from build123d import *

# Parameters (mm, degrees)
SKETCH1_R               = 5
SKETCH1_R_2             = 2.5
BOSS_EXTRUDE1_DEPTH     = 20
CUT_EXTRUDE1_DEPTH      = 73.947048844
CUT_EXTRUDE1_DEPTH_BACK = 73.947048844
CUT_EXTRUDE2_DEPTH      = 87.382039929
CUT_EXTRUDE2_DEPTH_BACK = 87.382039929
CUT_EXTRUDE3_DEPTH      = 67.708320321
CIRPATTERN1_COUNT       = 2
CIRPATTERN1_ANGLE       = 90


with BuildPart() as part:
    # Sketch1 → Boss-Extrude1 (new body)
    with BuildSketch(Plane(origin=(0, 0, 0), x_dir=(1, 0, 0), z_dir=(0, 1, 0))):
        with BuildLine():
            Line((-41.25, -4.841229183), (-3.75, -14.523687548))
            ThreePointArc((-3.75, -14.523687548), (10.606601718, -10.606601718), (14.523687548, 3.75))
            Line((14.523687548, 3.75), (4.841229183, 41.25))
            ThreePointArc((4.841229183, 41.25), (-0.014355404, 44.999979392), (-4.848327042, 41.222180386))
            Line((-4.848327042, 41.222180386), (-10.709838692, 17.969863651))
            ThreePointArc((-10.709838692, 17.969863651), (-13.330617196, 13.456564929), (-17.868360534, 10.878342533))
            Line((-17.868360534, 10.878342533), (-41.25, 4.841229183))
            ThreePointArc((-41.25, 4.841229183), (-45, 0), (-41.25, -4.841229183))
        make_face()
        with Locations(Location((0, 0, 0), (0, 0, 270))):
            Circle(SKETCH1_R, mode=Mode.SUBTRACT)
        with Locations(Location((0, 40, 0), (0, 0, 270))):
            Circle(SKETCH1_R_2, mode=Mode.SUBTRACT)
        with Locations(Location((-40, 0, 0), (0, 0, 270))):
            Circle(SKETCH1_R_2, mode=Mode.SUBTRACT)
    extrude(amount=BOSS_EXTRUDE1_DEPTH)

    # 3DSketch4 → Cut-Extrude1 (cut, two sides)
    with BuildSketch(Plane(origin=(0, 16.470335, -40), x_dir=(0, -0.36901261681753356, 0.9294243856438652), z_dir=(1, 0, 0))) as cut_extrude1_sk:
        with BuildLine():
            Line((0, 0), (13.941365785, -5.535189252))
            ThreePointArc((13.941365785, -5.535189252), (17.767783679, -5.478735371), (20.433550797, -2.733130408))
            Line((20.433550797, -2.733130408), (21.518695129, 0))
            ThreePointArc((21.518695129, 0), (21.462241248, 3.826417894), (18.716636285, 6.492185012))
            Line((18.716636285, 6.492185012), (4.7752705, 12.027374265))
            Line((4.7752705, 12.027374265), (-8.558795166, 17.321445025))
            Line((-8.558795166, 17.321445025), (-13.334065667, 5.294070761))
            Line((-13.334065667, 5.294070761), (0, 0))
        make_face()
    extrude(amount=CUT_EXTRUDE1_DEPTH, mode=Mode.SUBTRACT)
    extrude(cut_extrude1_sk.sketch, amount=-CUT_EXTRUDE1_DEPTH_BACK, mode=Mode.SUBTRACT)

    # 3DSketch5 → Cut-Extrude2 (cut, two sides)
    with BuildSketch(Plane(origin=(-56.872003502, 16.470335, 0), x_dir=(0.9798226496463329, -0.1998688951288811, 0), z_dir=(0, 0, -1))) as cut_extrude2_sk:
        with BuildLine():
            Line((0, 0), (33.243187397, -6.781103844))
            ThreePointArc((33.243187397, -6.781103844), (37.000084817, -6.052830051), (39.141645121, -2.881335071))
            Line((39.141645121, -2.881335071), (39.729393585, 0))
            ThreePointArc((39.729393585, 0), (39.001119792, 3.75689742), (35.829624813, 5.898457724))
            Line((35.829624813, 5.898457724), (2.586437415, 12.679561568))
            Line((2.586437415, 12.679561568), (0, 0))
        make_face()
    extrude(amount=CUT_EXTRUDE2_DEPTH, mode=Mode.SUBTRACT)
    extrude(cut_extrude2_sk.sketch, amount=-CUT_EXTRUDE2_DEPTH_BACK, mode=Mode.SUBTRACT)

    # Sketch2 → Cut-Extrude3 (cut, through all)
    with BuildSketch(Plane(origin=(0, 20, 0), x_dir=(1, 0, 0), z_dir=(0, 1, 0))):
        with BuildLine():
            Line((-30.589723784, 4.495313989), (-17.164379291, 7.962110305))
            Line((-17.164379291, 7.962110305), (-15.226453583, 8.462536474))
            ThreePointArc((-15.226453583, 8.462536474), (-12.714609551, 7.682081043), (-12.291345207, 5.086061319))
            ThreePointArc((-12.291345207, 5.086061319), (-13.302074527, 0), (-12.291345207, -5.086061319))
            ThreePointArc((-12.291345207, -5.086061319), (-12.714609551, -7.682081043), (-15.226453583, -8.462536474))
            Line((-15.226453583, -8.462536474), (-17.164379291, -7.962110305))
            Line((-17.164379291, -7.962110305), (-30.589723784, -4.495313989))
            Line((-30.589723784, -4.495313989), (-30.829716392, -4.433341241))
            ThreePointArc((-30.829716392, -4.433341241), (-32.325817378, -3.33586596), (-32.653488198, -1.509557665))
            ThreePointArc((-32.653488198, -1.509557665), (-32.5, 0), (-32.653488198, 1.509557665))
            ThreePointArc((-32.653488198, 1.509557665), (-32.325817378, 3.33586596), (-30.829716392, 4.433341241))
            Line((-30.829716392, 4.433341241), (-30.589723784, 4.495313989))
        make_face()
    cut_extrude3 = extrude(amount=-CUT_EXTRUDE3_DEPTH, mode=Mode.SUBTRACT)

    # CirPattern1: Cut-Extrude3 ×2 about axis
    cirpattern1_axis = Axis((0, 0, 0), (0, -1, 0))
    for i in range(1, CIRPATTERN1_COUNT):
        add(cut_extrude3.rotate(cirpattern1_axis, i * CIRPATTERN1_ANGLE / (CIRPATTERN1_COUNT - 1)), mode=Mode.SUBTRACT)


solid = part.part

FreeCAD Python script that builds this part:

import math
import FreeCAD as App
import Part
import Sketcher

doc = App.newDocument("Part")
body = doc.addObject("PartDesign::Body", "Body")

# Sketch on XZ plane
sketch1 = doc.addObject("Sketcher::SketchObject", "Sketch")
body.addObject(sketch1)
sketch1.AttachmentSupport = (doc.XZ_Plane, [""])
sketch1.MapMode = "FlatFace"
sketch1.addGeometry([
    Part.LineSegment(App.Vector(-41.2, 4.8, 0), App.Vector(-3.8, 14.5, 0)),  # 0
    Part.ArcOfCircle(Part.Circle(App.Vector(0, 0, 0), App.Vector(0, 0, 1), 15), math.radians(-14), math.radians(104)),  # 1
    Part.LineSegment(App.Vector(14.5, -3.8, 0), App.Vector(4.8, -41.2, 0)),  # 2
    Part.ArcOfCircle(Part.Circle(App.Vector(0, -40, 0), App.Vector(0, 0, 1), 5), math.radians(-166), math.radians(-14)),  # 3
    Part.LineSegment(App.Vector(-4.8, -41.2, 0), App.Vector(-10.7, -18, 0)),  # 4
    Part.ArcOfCircle(Part.Circle(App.Vector(-20.4, -20.6, 0), App.Vector(0, 0, 1), 10), math.radians(15), math.radians(76)),  # 5
    Part.LineSegment(App.Vector(-17.9, -10.9, 0), App.Vector(-41.2, -4.8, 0)),  # 6
    Part.ArcOfCircle(Part.Circle(App.Vector(-40, 0, 0), App.Vector(0, 0, 1), 5), math.radians(104), math.radians(256)),  # 7
    Part.Circle(App.Vector(-40, 0, 0), App.Vector(0, 0, 1), 2.5),  # 8
    Part.Circle(App.Vector(0, 0, 0), App.Vector(0, 0, 1), 5),  # 9
    Part.Circle(App.Vector(0, -40, 0), App.Vector(0, 0, 1), 2.5),  # 10
], False)
sketch1.addConstraint([
    Sketcher.Constraint("Tangent", 0, 2, 1, 2),
    Sketcher.Constraint("Tangent", 1, 1, 2, 1),
    Sketcher.Constraint("Tangent", 2, 2, 3, 2),
    Sketcher.Constraint("Tangent", 3, 1, 4, 1),
    Sketcher.Constraint("Coincident", 4, 2, 5, 1),
    Sketcher.Constraint("Tangent", 5, 2, 6, 1),
    Sketcher.Constraint("Tangent", 6, 2, 7, 2),
    Sketcher.Constraint("Tangent", 7, 1, 0, 1),
    Sketcher.Constraint("Coincident", 1, 3, -1, 1),
    Sketcher.Constraint("Coincident", 9, 3, -1, 1),
    Sketcher.Constraint("Coincident", 8, 3, 7, 3),
    Sketcher.Constraint("Coincident", 10, 3, 3, 3),
    Sketcher.Constraint("Equal", 3, 7),
    Sketcher.Constraint("Equal", 7, 9),
    Sketcher.Constraint("Equal", 8, 10),
    Sketcher.Constraint("Symmetric", 6, 2, 7, 1, -1),
    Sketcher.Constraint("PointOnObject", 3, 3, -2),
    Sketcher.Constraint("Perpendicular", 2, 6),
    Sketcher.Constraint("Diameter", 8, 5.0),
    Sketcher.Constraint("Diameter", 9, 10.0),
    Sketcher.Constraint("Radius", 1, 15.0),
    Sketcher.Constraint("Radius", 5, 10.0),
    Sketcher.Constraint("DistanceY", 3, 3, -1, 1, 40.0),
    Sketcher.Constraint("DistanceY", 5, 3, -1, 1, 20.560801),
    Sketcher.Constraint("DistanceX", 4, 2, -1, 1, 10.709839),
])
pad1 = doc.addObject("PartDesign::Pad", "Pad")
body.addObject(pad1)
pad1.Profile = sketch1
pad1.Length = 20
pad1.Reversed = True

# Sketch on YZ plane
sketch2 = doc.addObject("Sketcher::SketchObject", "Sketch001")
body.addObject(sketch2)
sketch2.AttachmentSupport = (doc.YZ_Plane, [""])
sketch2.MapMode = "FlatFace"
sketch2.addGeometry([
    Part.LineSegment(App.Vector(16.5, -40, 0), App.Vector(16.5, -25, 0)),  # 0
    Part.ArcOfCircle(Part.Circle(App.Vector(11.5, -25, 0), App.Vector(0, 0, 1), 5), math.radians(0), math.radians(90)),  # 1
    Part.LineSegment(App.Vector(11.5, -20, 0), App.Vector(8.5, -20, 0)),  # 2
    Part.ArcOfCircle(Part.Circle(App.Vector(8.5, -25, 0), App.Vector(0, 0, 1), 5), math.radians(90), math.radians(180)),  # 3
    Part.LineSegment(App.Vector(3.5, -25, 0), App.Vector(3.5, -40, 0)),  # 4
    Part.LineSegment(App.Vector(3.5, -40, 0), App.Vector(3.5, -54.3, 0)),  # 5
    Part.LineSegment(App.Vector(3.5, -54.3, 0), App.Vector(16.5, -54.3, 0)),  # 6
    Part.LineSegment(App.Vector(16.5, -54.3, 0), App.Vector(16.5, -40, 0)),  # 7
], False)
sketch2.addConstraint([
    Sketcher.Constraint("Tangent", 0, 2, 1, 1),
    Sketcher.Constraint("Tangent", 1, 2, 2, 1),
    Sketcher.Constraint("Tangent", 2, 2, 3, 1),
    Sketcher.Constraint("Tangent", 3, 2, 4, 1),
    Sketcher.Constraint("Coincident", 4, 2, 5, 1),
    Sketcher.Constraint("Coincident", 5, 2, 6, 1),
    Sketcher.Constraint("Coincident", 6, 2, 7, 1),
    Sketcher.Constraint("Coincident", 7, 2, 0, 1),
    Sketcher.Constraint("Vertical", 0),
    Sketcher.Constraint("Horizontal", 2),
    Sketcher.Constraint("Vertical", 4),
    Sketcher.Constraint("Vertical", 5),
    Sketcher.Constraint("Horizontal", 6),
    Sketcher.Constraint("Vertical", 7),
    Sketcher.Constraint("Equal", 1, 3),
    Sketcher.Constraint("Horizontal", 4, 2, 7, 2),
    Sketcher.Constraint("Radius", 1, 5.0),
    Sketcher.Constraint("DistanceY", 0, 1, 0, 2, 15.0),
    Sketcher.Constraint("DistanceY", 1, 3, -1, 1, 25.0),
    Sketcher.Constraint("DistanceX", 2, 2, 2, 1, 2.94067),
    Sketcher.Constraint("DistanceY", 5, 2, 5, 1, 14.346585),
    Sketcher.Constraint("DistanceX", -1, 1, 1, 3, 11.470335),
])
pocket1 = doc.addObject("PartDesign::Pocket", "Pocket")
body.addObject(pocket1)
pocket1.Profile = sketch2
pocket1.Type = "ThroughAll"
pocket1.Midplane = True

# Sketch on XY plane
sketch3 = doc.addObject("Sketcher::SketchObject", "Sketch002")
body.addObject(sketch3)
sketch3.AttachmentSupport = (doc.XY_Plane, [""])
sketch3.MapMode = "FlatFace"
sketch3.addGeometry([
    Part.LineSegment(App.Vector(-56.9, 16.5, 0), App.Vector(-22.9, 16.5, 0)),  # 0
    Part.ArcOfCircle(Part.Circle(App.Vector(-22.9, 11.5, 0), App.Vector(0, 0, 1), 5), math.radians(0), math.radians(90)),  # 1
    Part.LineSegment(App.Vector(-17.9, 11.5, 0), App.Vector(-17.9, 8.5, 0)),  # 2
    Part.ArcOfCircle(Part.Circle(App.Vector(-22.9, 8.5, 0), App.Vector(0, 0, 1), 5), math.radians(-90), math.radians(0)),  # 3
    Part.LineSegment(App.Vector(-22.9, 3.5, 0), App.Vector(-56.9, 3.5, 0)),  # 4
    Part.LineSegment(App.Vector(-56.9, 3.5, 0), App.Vector(-56.9, 16.5, 0)),  # 5
], False)
sketch3.addConstraint([
    Sketcher.Constraint("Tangent", 0, 2, 1, 2),
    Sketcher.Constraint("Tangent", 1, 1, 2, 1),
    Sketcher.Constraint("Tangent", 2, 2, 3, 2),
    Sketcher.Constraint("Tangent", 3, 1, 4, 1),
    Sketcher.Constraint("Coincident", 4, 2, 5, 1),
    Sketcher.Constraint("Coincident", 5, 2, 0, 1),
    Sketcher.Constraint("Horizontal", 0),
    Sketcher.Constraint("Vertical", 2),
    Sketcher.Constraint("Horizontal", 4),
    Sketcher.Constraint("Vertical", 5),
    Sketcher.Constraint("Equal", 1, 3),
    Sketcher.Constraint("Radius", 1, 5.0),
    Sketcher.Constraint("DistanceX", 0, 1, 0, 2, 33.92776),
    Sketcher.Constraint("DistanceY", 2, 2, 2, 1, 2.94067),
    Sketcher.Constraint("DistanceX", 1, 3, -1, 1, 22.944244),
    Sketcher.Constraint("DistanceY", -1, 1, 1, 3, 11.470335),
])
pocket2 = doc.addObject("PartDesign::Pocket", "Pocket001")
body.addObject(pocket2)
pocket2.Profile = sketch3
pocket2.Type = "ThroughAll"
pocket2.Midplane = True

# Sketch on XZ plane
sketch4 = doc.addObject("Sketcher::SketchObject", "Sketch003")
body.addObject(sketch4)
sketch4.AttachmentSupport = (doc.XZ_Plane, [""])
sketch4.MapMode = "FlatFace"
sketch4.AttachmentOffset = App.Placement(App.Vector(0, 0, -20), App.Rotation())
sketch4.addGeometry([
    Part.LineSegment(App.Vector(-17.16, -7.96, 0), App.Vector(-30.59, -4.5, 0)),  # 0
    Part.LineSegment(App.Vector(-30.59, -4.5, 0), App.Vector(-30.83, -4.43, 0)),  # 1
    Part.ArcOfCircle(Part.Circle(App.Vector(-30.2, -2.01, 0), App.Vector(0, 0, 1), 2.5), math.radians(168), math.radians(256)),  # 2
    Part.ArcOfCircle(Part.Circle(App.Vector(-40, 0, 0), App.Vector(0, 0, 1), 7.5), math.radians(-12), math.radians(12)),  # 3
    Part.ArcOfCircle(Part.Circle(App.Vector(-30.2, 2.01, 0), App.Vector(0, 0, 1), 2.5), math.radians(104), math.radians(192)),  # 4
    Part.LineSegment(App.Vector(-30.83, 4.43, 0), App.Vector(-30.59, 4.5, 0)),  # 5
    Part.LineSegment(App.Vector(-30.59, 4.5, 0), App.Vector(-17.16, 7.96, 0)),  # 6
    Part.LineSegment(App.Vector(-17.16, 7.96, 0), App.Vector(-15.23, 8.46, 0)),  # 7
    Part.ArcOfCircle(Part.Circle(App.Vector(-14.6, 6.04, 0), App.Vector(0, 0, 1), 2.5), math.radians(-22), math.radians(104)),  # 8
    Part.ArcOfCircle(Part.Circle(App.Vector(0, 0, 0), App.Vector(0, 0, 1), 13.3), math.radians(158), math.radians(202)),  # 9
    Part.ArcOfCircle(Part.Circle(App.Vector(-14.6, -6.04, 0), App.Vector(0, 0, 1), 2.5), math.radians(-104), math.radians(22)),  # 10
    Part.LineSegment(App.Vector(-15.23, -8.46, 0), App.Vector(-17.16, -7.96, 0)),  # 11
], False)
sketch4.addConstraint([
    Sketcher.Constraint("Coincident", 0, 2, 1, 1),
    Sketcher.Constraint("Tangent", 1, 2, 2, 2),
    Sketcher.Constraint("Tangent", 2, 1, 3, 1),
    Sketcher.Constraint("Tangent", 3, 2, 4, 2),
    Sketcher.Constraint("Tangent", 4, 1, 5, 1),
    Sketcher.Constraint("Coincident", 5, 2, 6, 1),
    Sketcher.Constraint("Coincident", 6, 2, 7, 1),
    Sketcher.Constraint("Tangent", 7, 2, 8, 2),
    Sketcher.Constraint("Tangent", 8, 1, 9, 1),
    Sketcher.Constraint("Tangent", 9, 2, 10, 2),
    Sketcher.Constraint("Tangent", 10, 1, 11, 1),
    Sketcher.Constraint("Coincident", 11, 2, 0, 1),
    Sketcher.Constraint("Coincident", 9, 3, -1, 1),
    Sketcher.Constraint("Equal", 2, 4),
    Sketcher.Constraint("Equal", 4, 8),
    Sketcher.Constraint("Equal", 8, 10),
    Sketcher.Constraint("Symmetric", 2, 3, 4, 3, -1),
    Sketcher.Constraint("Symmetric", 0, 2, 5, 2, -1),
    Sketcher.Constraint("Symmetric", 7, 2, 10, 1, -1),
    Sketcher.Constraint("Parallel", 0, 1),
    Sketcher.Constraint("Parallel", 6, 7),
    Sketcher.Constraint("Vertical", 6, 2, 11, 2),
    Sketcher.Constraint("Radius", 2, 2.5),
    Sketcher.Constraint("Radius", 3, 7.5),
    Sketcher.Constraint("DistanceX", 3, 3, -1, 1, 40.0),
    Sketcher.Constraint("Radius", 9, 13.302075),
    Sketcher.Constraint("DistanceY", 10, 3, 8, 1, 11.128),
    Sketcher.Constraint("DistanceY", 2, 1, 4, 3, 3.522301),
    Sketcher.Constraint("DistanceX", 6, 2, -1, 1, 17.164379),
    Sketcher.Constraint("DistanceY", 0, 2, 2, 3, 2.48257),
])
pocket3 = doc.addObject("PartDesign::Pocket", "Pocket002")
body.addObject(pocket3)
pocket3.Profile = sketch4
pocket3.Type = "ThroughAll"
pocket3.Reversed = True
doc.recompute()

polarpattern = doc.addObject("PartDesign::PolarPattern", "PolarPattern")
body.addObject(polarpattern)
polarpattern.Originals = [pocket3]
polarpattern.Axis = (doc.Y_Axis, [""])
polarpattern.Angle = 90
polarpattern.Occurrences = 2
polarpattern.Reversed = True
body.Tip = polarpattern

doc.recompute()
